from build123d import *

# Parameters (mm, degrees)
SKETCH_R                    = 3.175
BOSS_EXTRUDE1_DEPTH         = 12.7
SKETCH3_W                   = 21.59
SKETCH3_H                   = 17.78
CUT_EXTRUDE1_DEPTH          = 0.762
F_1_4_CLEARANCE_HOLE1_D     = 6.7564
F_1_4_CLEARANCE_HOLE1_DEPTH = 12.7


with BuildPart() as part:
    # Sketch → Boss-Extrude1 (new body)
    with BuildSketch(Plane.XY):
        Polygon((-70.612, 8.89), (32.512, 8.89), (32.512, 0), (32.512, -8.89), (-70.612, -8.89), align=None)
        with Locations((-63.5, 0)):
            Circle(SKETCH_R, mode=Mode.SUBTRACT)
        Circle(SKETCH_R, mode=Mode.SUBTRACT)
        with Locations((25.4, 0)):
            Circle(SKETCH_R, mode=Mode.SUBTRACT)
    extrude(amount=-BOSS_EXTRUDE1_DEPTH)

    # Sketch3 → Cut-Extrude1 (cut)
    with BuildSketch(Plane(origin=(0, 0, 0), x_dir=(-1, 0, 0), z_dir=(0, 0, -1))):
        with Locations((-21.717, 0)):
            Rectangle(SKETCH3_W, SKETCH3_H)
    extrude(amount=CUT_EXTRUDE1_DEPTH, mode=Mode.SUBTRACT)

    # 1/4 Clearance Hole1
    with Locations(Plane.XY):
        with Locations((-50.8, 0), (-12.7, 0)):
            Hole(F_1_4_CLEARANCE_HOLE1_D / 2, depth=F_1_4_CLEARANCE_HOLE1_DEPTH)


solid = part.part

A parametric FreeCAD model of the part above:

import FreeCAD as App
import Part
import Sketcher

V = App.Vector
Q = App.Units.Quantity

doc = App.newDocument("Part")
body = doc.addObject("PartDesign::Body", "Body")

# Sketch on XY plane
sketch1 = doc.addObject("Sketcher::SketchObject", "Sketch")
body.addObject(sketch1)
sketch1.AttachmentSupport = (doc.XY_Plane, [""])
sketch1.MapMode = "FlatFace"
sketch1.addGeometry([
    Part.LineSegment(V(32.5, 8.9, 0), V(-70.6, 8.9, 0)),  # 0
    Part.LineSegment(V(-70.6, 8.9, 0), V(-70.6, -8.9, 0)),  # 1
    Part.LineSegment(V(-70.6, -8.9, 0), V(32.5, -8.9, 0)),  # 2
    Part.LineSegment(V(32.5, -8.9, 0), V(32.5, 8.9, 0)),  # 3
    Part.Circle(V(25.4, 0, 0), V(0, 0, 1), 3.2),  # 4
    Part.Circle(V(0, 0, 0), V(0, 0, 1), 3.2),  # 5
    Part.Circle(V(-63.5, 0, 0), V(0, 0, 1), 3.2),  # 6
], False)
sketch1.addConstraint([
    Sketcher.Constraint("Coincident", 0, 2, 1, 1),
    Sketcher.Constraint("Coincident", 1, 2, 2, 1),
    Sketcher.Constraint("Coincident", 2, 2, 3, 1),
    Sketcher.Constraint("Coincident", 3, 2, 0, 1),
    Sketcher.Constraint("Horizontal", 0),
    Sketcher.Constraint("Vertical", 1),
    Sketcher.Constraint("Horizontal", 2),
    Sketcher.Constraint("Vertical", 3),
    Sketcher.Constraint("Coincident", 5, 3, -1, 1),
    Sketcher.Constraint("Equal", 4, 5),
    Sketcher.Constraint("Equal", 5, 6),
    Sketcher.Constraint("PointOnObject", 4, 3, -1),
    Sketcher.Constraint("PointOnObject", 6, 3, -1),
    Sketcher.Constraint("Diameter", 4, Q("0.25 in")),
    Sketcher.Constraint("DistanceY", 1, 2, 1, 1, Q("0.7 in")),
    Sketcher.Constraint("DistanceX", -1, 1, 4, 3, Q("1 in")),
    Sketcher.Constraint("DistanceX", 0, 2, 0, 1, Q("4.06 in")),
    Sketcher.Constraint("DistanceX", 6, 3, -1, 1, Q("2.5 in")),
    Sketcher.Constraint("DistanceX", 0, 2, -1, 1, Q("2.78 in")),
    Sketcher.Constraint("DistanceY", -1, 1, 0, 2, Q("0.35 in")),
])
pad1 = doc.addObject("PartDesign::Pad", "Pad")
body.addObject(pad1)
pad1.Profile = sketch1
pad1.Length = Q("0.5 in")
pad1.Reversed = True

# Sketch on XY plane
sketch2 = doc.addObject("Sketcher::SketchObject", "Sketch001")
body.addObject(sketch2)
sketch2.AttachmentSupport = (doc.XY_Plane, [""])
sketch2.MapMode = "FlatFace"
sketch2.addGeometry([
    Part.LineSegment(V(33, 9, 0), V(33, -9, 0)),
    Part.LineSegment(V(33, -9, 0), V(11, -9, 0)),
    Part.LineSegment(V(11, -9, 0), V(11, 9, 0)),
    Part.LineSegment(V(11, 9, 0), V(33, 9, 0)),
], False)
sketch2.addConstraint([
    Sketcher.Constraint("Coincident", 0, 2, 1, 1),
    Sketcher.Constraint("Coincident", 1, 2, 2, 1),
    Sketcher.Constraint("Coincident", 2, 2, 3, 1),
    Sketcher.Constraint("Coincident", 3, 2, 0, 1),
    Sketcher.Constraint("Vertical", 0),
    Sketcher.Constraint("Horizontal", 1),
    Sketcher.Constraint("Vertical", 2),
    Sketcher.Constraint("Horizontal", 3),
    Sketcher.Constraint("DistanceY", 0, 2, 0, 1, Q("0.7 in")),
    Sketcher.Constraint("DistanceX", 1, 2, 1, 1, Q("0.85 in")),
    Sketcher.Constraint("DistanceX", -1, 1, 0, 2, Q("1.28 in")),
    Sketcher.Constraint("DistanceY", 0, 2, -1, 1, Q("0.35 in")),
])
pocket1 = doc.addObject("PartDesign::Pocket", "Pocket")
body.addObject(pocket1)
pocket1.Profile = sketch2
pocket1.Length = Q("0.03 in")

# Sketch on XY plane
sketch3 = doc.addObject("Sketcher::SketchObject", "Sketch002")
body.addObject(sketch3)
sketch3.AttachmentSupport = (doc.XY_Plane, [""])
sketch3.MapMode = "FlatFace"
sketch3.addGeometry([
    Part.Circle(V(-50.8, 0, 0), V(0, 0, 1), 3.4),
    Part.Circle(V(-12.7, 0, 0), V(0, 0, 1), 3.4),
], False)
sketch3.addConstraint([
    Sketcher.Constraint("Equal", 0, 1),
    Sketcher.Constraint("PointOnObject", 0, 3, -1),
    Sketcher.Constraint("PointOnObject", 1, 3, -1),
    Sketcher.Constraint("Diameter", 0, Q("0.266 in")),
    Sketcher.Constraint("DistanceX", 0, 3, -1, 1, Q("2 in")),
    Sketcher.Constraint("DistanceX", 1, 3, -1, 1, Q("0.5 in")),
])
doc.recompute()
hole = doc.addObject("PartDesign::Hole", "Hole")
body.addObject(hole)
hole.Profile = sketch3
hole.ThreadType = "None"
hole.Diameter = Q("0.266 in")
hole.DepthType = "Dimension"
hole.Depth = Q("0.5 in")
hole.DrillPoint = "Flat"

doc.recompute()
